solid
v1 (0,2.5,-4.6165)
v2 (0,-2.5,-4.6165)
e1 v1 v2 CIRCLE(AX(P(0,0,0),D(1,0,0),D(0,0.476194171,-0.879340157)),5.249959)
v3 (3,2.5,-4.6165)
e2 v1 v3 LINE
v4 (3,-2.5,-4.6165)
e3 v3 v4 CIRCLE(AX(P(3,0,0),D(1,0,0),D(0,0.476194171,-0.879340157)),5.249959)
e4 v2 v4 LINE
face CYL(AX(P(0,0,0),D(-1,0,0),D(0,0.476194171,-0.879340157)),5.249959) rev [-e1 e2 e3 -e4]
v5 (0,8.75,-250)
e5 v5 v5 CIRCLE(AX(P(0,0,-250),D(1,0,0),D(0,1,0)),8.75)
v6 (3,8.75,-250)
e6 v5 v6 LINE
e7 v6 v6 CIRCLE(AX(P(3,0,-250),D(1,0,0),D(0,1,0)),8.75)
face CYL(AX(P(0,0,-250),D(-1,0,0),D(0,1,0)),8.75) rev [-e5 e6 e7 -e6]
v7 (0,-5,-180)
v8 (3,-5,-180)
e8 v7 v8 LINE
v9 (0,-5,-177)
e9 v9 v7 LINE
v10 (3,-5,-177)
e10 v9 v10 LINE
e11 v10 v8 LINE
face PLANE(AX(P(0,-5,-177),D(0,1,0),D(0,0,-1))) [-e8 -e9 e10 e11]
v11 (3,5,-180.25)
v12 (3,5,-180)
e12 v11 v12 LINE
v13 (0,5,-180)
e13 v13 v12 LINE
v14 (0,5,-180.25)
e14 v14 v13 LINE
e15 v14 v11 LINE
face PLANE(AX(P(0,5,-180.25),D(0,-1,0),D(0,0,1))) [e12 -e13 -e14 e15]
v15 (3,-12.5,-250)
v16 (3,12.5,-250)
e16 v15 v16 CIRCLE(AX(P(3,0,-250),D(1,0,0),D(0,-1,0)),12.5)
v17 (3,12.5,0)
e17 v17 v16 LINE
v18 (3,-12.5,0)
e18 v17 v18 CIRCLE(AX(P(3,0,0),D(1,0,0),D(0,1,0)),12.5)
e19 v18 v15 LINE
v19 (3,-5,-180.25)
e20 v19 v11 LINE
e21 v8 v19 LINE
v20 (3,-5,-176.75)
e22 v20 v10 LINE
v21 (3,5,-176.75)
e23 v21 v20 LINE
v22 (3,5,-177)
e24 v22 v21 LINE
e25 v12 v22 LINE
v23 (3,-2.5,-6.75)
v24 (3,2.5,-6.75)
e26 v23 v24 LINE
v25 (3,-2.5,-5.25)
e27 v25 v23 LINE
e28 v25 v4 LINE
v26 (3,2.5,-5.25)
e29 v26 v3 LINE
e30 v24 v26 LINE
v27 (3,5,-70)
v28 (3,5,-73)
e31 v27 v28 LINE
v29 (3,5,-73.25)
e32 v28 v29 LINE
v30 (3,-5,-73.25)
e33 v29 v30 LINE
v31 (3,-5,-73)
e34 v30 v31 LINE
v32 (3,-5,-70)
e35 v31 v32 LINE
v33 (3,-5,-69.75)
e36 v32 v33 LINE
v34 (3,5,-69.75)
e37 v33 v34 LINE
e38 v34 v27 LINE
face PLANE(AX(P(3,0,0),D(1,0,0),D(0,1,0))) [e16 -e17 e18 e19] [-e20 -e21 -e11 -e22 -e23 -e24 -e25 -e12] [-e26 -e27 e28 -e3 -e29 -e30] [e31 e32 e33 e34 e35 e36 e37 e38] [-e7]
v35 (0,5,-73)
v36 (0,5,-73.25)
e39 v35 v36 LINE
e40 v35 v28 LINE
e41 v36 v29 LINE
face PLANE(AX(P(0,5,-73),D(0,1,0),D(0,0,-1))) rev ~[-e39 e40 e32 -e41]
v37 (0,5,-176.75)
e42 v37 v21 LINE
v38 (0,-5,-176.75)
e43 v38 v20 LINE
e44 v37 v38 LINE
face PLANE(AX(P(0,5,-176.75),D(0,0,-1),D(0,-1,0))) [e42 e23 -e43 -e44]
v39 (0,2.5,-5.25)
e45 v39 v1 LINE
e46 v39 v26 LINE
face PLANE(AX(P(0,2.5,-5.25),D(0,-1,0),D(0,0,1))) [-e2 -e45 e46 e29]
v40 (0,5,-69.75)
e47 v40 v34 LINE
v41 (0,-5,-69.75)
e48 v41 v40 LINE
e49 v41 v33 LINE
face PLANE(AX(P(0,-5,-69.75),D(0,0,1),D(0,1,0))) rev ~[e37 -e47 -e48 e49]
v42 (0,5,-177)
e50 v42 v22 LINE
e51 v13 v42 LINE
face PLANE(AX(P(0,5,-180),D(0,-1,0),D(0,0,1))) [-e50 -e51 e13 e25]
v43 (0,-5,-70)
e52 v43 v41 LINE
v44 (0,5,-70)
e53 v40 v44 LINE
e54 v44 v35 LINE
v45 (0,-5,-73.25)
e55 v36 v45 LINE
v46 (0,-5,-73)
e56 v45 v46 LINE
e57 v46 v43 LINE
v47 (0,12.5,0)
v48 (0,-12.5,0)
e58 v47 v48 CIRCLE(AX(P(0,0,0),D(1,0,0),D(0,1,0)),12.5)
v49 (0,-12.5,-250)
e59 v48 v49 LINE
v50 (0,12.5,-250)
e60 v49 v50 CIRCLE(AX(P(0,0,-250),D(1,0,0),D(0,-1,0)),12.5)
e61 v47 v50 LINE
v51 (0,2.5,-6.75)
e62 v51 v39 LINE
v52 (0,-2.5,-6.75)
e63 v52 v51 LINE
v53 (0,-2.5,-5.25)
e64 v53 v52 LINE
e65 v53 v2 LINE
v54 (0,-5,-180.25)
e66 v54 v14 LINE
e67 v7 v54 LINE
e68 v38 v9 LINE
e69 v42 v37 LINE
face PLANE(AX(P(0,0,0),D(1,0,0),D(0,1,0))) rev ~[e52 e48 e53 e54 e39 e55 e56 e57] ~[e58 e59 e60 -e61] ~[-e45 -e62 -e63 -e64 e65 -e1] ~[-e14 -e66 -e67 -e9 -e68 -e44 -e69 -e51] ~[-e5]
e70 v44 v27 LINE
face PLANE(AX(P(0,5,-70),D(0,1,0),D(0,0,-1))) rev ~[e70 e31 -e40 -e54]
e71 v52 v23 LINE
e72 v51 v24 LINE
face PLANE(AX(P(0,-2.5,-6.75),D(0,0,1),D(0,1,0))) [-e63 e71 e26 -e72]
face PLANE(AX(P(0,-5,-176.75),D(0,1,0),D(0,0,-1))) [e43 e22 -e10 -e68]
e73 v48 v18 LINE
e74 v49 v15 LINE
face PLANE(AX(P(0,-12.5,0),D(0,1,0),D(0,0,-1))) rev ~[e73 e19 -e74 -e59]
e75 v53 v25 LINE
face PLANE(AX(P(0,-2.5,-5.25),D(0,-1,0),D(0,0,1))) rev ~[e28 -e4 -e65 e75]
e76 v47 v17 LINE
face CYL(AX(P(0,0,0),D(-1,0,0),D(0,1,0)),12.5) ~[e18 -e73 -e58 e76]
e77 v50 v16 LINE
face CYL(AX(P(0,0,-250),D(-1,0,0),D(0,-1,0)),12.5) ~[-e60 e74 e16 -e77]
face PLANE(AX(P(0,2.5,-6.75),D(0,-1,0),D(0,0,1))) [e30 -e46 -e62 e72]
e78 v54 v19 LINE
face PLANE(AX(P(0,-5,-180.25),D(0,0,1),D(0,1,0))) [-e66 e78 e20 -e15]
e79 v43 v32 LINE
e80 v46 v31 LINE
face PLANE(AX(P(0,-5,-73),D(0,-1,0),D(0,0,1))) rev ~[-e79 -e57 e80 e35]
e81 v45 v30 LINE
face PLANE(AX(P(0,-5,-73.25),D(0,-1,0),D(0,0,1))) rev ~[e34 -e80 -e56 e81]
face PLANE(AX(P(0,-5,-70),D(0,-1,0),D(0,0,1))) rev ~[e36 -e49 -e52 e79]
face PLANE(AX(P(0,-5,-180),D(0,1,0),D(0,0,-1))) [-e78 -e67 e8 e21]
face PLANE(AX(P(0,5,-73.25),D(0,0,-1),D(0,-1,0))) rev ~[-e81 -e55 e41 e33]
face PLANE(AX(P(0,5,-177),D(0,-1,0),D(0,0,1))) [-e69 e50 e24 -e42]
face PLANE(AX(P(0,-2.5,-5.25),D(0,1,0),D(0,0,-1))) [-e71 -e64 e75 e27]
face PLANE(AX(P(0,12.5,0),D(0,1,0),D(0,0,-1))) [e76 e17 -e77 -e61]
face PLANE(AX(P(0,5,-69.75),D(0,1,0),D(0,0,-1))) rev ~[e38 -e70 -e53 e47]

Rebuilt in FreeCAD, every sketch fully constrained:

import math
import FreeCAD as App
import Part
import Sketcher

V = App.Vector
Q = App.Units.Quantity


def add_polygon(sketch, points):
    """Adds a closed chain of lines whose ends are joined by coincident constraints."""
    first, n = sketch.GeometryCount, len(points)
    for a, b in zip(points, points[1:] + points[:1]):
        sketch.addGeometry(Part.LineSegment(App.Vector(*a, 0), App.Vector(*b, 0)), False)
    for i in range(n):
        sketch.addConstraint(Sketcher.Constraint("Coincident", first + i, 2, first + (i + 1) % n, 1))

doc = App.newDocument("Part")
body = doc.addObject("PartDesign::Body", "Body")

sketch1 = body.newObject("Sketcher::SketchObject", "Sketch")
sketch1.AttachmentSupport = (doc.getObject("YZ_Plane"), [""])
sketch1.MapMode = "FlatFace"
sketch1.addGeometry(Part.LineSegment(V(12.5, -250, 0), V(12.5, 0, 0)), False)
sketch1.addGeometry(Part.ArcOfCircle(Part.Circle(V(0, 0, 0), V(0, 0, 1), 12.5), math.radians(0), math.radians(180)), False)
sketch1.addGeometry(Part.LineSegment(V(-12.5, 0, 0), V(-12.5, -250, 0)), False)
sketch1.addGeometry(Part.ArcOfCircle(Part.Circle(V(0, -250, 0), V(0, 0, 1), 12.5), math.radians(180), math.radians(360)), False)
sketch1.addGeometry(Part.Circle(V(0, -250, 0), V(0, 0, 1), 8.8), False)
add_polygon(sketch1, [(5, -176.8), (5, -180.2), (-5, -180.2), (-5, -176.8)])
add_polygon(sketch1, [(5, -69.8), (5, -73.2), (-5, -73.2), (-5, -69.8)])
sketch1.addGeometry(Part.ArcOfCircle(Part.Circle(V(0, 0, 0), V(0, 0, 1), 5.2), math.radians(-62), math.radians(242)), False)
sketch1.addGeometry(Part.LineSegment(V(2.5, -4.6, 0), V(2.5, -6.8, 0)), False)
sketch1.addGeometry(Part.LineSegment(V(2.5, -6.8, 0), V(-2.5, -6.8, 0)), False)
sketch1.addGeometry(Part.LineSegment(V(-2.5, -6.8, 0), V(-2.5, -4.6, 0)), False)
sketch1.addConstraint([
    Sketcher.Constraint("Tangent", 0, 2, 1, 1),
    Sketcher.Constraint("Tangent", 1, 2, 2, 1),
    Sketcher.Constraint("Tangent", 2, 2, 3, 1),
    Sketcher.Constraint("Tangent", 3, 2, 0, 1),
    Sketcher.Constraint("Coincident", 13, 1, 14, 1),
    Sketcher.Constraint("Coincident", 14, 2, 15, 1),
    Sketcher.Constraint("Coincident", 15, 2, 16, 1),
    Sketcher.Constraint("Coincident", 16, 2, 13, 2),
    Sketcher.Constraint("Vertical", 0),
    Sketcher.Constraint("Vertical", 2),
    Sketcher.Constraint("Vertical", 5),
    Sketcher.Constraint("Horizontal", 6),
    Sketcher.Constraint("Vertical", 7),
    Sketcher.Constraint("Horizontal", 8),
    Sketcher.Constraint("Vertical", 9),
    Sketcher.Constraint("Horizontal", 10),
    Sketcher.Constraint("Vertical", 11),
    Sketcher.Constraint("Horizontal", 12),
    Sketcher.Constraint("Vertical", 14),
    Sketcher.Constraint("Horizontal", 15),
    Sketcher.Constraint("Vertical", 16),
    Sketcher.Constraint("Coincident", 1, 3, -1, 1),
    Sketcher.Constraint("Coincident", 13, 3, -1, 1),
    Sketcher.Constraint("Coincident", 4, 3, 3, 3),
    Sketcher.Constraint("Horizontal", 13, 1, 16, 2),
    Sketcher.Constraint("Vertical", 8, 2, 9, 2),
    Sketcher.Constraint("Vertical", 7, 2, 10, 2),
    Sketcher.Constraint("Equal", 7, 9),
    Sketcher.Constraint("Diameter", 4, Q("17.5 mm")),
    Sketcher.Constraint("Radius", 1, Q("12.5 mm")),
    Sketcher.Constraint("DistanceX", 6, 2, 6, 1, Q("10 mm")),
    Sketcher.Constraint("DistanceX", 15, 2, 15, 1, Q("5 mm")),
    Sketcher.Constraint("DistanceY", 0, 1, 0, 2, Q("250 mm")),
    Sketcher.Constraint("Radius", 13, Q("5.25 mm")),
    Sketcher.Constraint("DistanceX", -1, 1, 5, 2, Q("5 mm")),
    Sketcher.Constraint("DistanceY", 5, 2, 5, 1, Q("3.5 mm")),
    Sketcher.Constraint("DistanceY", 8, 2, 9, 2, Q("103.5 mm")),
    Sketcher.Constraint("DistanceY", 5, 2, -1, 1, Q("180.25 mm")),
    Sketcher.Constraint("DistanceY", 14, 2, -1, 1, Q("6.75 mm")),
])
pad1 = body.newObject("PartDesign::Pad", "Pad")
pad1.Profile = sketch1
pad1.Length = 3

doc.recompute()
